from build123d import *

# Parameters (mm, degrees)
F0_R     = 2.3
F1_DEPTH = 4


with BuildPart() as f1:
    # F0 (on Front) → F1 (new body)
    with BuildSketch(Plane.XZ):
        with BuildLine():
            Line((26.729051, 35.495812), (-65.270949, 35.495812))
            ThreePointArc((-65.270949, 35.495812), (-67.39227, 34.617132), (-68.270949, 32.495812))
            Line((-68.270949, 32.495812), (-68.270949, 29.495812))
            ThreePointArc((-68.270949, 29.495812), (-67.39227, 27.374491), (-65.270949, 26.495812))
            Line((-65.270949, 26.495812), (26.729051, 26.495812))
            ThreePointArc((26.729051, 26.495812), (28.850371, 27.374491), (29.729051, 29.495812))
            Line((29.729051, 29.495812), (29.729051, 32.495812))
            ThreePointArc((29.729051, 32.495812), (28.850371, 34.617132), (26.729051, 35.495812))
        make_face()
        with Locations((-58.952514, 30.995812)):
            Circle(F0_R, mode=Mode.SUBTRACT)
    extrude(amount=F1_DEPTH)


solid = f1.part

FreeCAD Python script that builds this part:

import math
import FreeCAD as App
import Part
import Sketcher
Q = App.Units.Quantity

doc = App.newDocument("Part")
body = doc.addObject("PartDesign::Body", "Body")

sketch1 = body.newObject("Sketcher::SketchObject", "Sketch")
sketch1.AttachmentSupport = (doc.getObject("XZ_Plane"), [""])
sketch1.MapMode = "FlatFace"
sketch1.addGeometry([
    Part.LineSegment(App.Vector(26.729051, 35.495812, 0), App.Vector(-65.270949, 35.495812, 0)),
    Part.ArcOfCircle(Part.Circle(App.Vector(-65.27095, 32.495813, 0), App.Vector(0, 0, 1), 2.999999), math.radians(89.99999), math.radians(180.00001)),
    Part.LineSegment(App.Vector(-68.270949, 32.495812, 0), App.Vector(-68.270949, 29.495812, 0)),
    Part.ArcOfCircle(Part.Circle(App.Vector(-65.270951, 29.49581, 0), App.Vector(0, 0, 1), 2.999998), math.radians(179.999957), math.radians(270.000043)),
    Part.LineSegment(App.Vector(-65.270949, 26.495812, 0), App.Vector(26.729051, 26.495812, 0)),
    Part.ArcOfCircle(Part.Circle(App.Vector(26.729052, 29.495811, 0), App.Vector(0, 0, 1), 2.999999), math.radians(-90.00001), math.radians(0.00001)),
    Part.LineSegment(App.Vector(29.729051, 29.495812, 0), App.Vector(29.729051, 32.495812, 0)),
    Part.ArcOfCircle(Part.Circle(App.Vector(26.72905, 32.495811, 0), App.Vector(0, 0, 1), 3.000001), math.radians(0.000022), math.radians(89.999978)),
    Part.Circle(App.Vector(-58.952514, 30.995812, 0), App.Vector(0, 0, 1), 2.3),
], False)
sketch1.addConstraint([
    Sketcher.Constraint("Tangent", 0, 2, 1, 1),
    Sketcher.Constraint("Tangent", 1, 2, 2, 1),
    Sketcher.Constraint("Tangent", 2, 2, 3, 1),
    Sketcher.Constraint("Tangent", 3, 2, 4, 1),
    Sketcher.Constraint("Tangent", 4, 2, 5, 1),
    Sketcher.Constraint("Tangent", 5, 2, 6, 1),
    Sketcher.Constraint("Tangent", 6, 2, 7, 1),
    Sketcher.Constraint("Tangent", 7, 2, 0, 1),
    Sketcher.Constraint("Horizontal", 0),
    Sketcher.Constraint("Vertical", 2),
    Sketcher.Constraint("Horizontal", 4),
    Sketcher.Constraint("Vertical", 6),
    Sketcher.Constraint("Equal", 1, 3),
    Sketcher.Constraint("Equal", 3, 5),
    Sketcher.Constraint("Equal", 5, 7),
    Sketcher.Constraint("Radius", 1, Q("2.999999 mm")),
    Sketcher.Constraint("Diameter", 8, Q("4.6 mm")),
    Sketcher.Constraint("DistanceX", 0, 2, 0, 1, Q("92 mm")),
    Sketcher.Constraint("DistanceY", 2, 2, 2, 1, Q("3 mm")),
    Sketcher.Constraint("DistanceY", 8, 3, 1, 3, Q("1.500001 mm")),
    Sketcher.Constraint("DistanceX", 1, 3, -1, 1, Q("65.27095 mm")),
    Sketcher.Constraint("DistanceY", -1, 1, 3, 3, Q("29.49581 mm")),
    Sketcher.Constraint("DistanceX", 8, 3, -1, 1, Q("58.952514 mm")),
])
pad1 = body.newObject("PartDesign::Pad", "Pad")
pad1.Profile = sketch1
pad1.Length = 4

doc.recompute()
